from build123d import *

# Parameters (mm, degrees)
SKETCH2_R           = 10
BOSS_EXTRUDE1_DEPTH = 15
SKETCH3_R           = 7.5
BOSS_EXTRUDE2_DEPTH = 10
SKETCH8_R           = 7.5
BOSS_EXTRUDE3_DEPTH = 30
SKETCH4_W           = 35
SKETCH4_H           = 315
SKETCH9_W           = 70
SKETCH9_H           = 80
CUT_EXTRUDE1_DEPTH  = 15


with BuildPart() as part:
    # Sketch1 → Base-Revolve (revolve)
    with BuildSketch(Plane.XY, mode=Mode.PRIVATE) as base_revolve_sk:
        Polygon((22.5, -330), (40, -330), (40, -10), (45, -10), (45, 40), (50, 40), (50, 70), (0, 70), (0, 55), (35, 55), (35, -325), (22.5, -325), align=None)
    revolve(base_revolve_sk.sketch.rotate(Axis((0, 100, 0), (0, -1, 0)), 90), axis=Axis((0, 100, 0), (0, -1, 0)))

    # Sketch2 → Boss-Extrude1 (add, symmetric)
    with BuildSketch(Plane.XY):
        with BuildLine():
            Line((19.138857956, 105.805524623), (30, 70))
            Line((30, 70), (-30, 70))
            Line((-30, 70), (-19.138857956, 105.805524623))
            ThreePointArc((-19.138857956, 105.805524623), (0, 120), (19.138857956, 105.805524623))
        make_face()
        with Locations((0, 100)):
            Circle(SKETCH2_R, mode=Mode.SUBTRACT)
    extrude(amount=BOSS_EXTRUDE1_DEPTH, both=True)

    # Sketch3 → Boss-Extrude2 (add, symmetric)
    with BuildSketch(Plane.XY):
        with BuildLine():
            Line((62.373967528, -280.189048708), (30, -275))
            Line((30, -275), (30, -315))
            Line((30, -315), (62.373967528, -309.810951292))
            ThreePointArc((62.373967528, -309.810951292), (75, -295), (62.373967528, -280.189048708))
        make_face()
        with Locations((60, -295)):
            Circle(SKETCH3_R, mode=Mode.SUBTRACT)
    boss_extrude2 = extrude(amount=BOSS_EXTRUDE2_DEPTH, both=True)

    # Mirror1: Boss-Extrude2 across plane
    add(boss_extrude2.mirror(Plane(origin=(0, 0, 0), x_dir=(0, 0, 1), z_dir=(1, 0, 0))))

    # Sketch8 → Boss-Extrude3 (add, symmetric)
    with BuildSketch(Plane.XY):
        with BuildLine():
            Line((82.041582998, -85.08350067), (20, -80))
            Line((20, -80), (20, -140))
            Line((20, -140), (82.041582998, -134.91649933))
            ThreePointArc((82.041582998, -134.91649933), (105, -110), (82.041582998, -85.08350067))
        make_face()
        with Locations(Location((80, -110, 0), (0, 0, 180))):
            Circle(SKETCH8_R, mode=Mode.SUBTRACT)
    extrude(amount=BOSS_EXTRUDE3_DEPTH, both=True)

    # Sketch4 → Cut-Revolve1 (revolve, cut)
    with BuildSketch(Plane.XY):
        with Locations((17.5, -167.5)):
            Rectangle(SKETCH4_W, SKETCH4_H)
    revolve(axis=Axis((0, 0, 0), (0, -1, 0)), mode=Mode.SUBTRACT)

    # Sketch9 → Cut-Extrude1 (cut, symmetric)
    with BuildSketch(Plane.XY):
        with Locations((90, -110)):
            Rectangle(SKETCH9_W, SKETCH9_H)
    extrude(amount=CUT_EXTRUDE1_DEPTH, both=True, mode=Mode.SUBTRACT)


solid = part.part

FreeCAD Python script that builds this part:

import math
import FreeCAD as App
import Part
import Sketcher
from FreeCAD import Vector

doc = App.newDocument("Part")
body = doc.addObject("PartDesign::Body", "Body")

sketch1 = body.newObject("Sketcher::SketchObject", "Sketch")
sketch1.AttachmentSupport = (doc.getObject("XY_Plane"), [""])
sketch1.MapMode = "FlatFace"
sketch1.addGeometry(Part.LineSegment(Vector(22, -330, 0), Vector(40, -330, 0)), False)
sketch1.addGeometry(Part.LineSegment(Vector(40, -330, 0), Vector(40, -10, 0)), False)
sketch1.addGeometry(Part.LineSegment(Vector(40, -10, 0), Vector(45, -10, 0)), False)
sketch1.addGeometry(Part.LineSegment(Vector(45, -10, 0), Vector(45, 40, 0)), False)
sketch1.addGeometry(Part.LineSegment(Vector(45, 40, 0), Vector(50, 40, 0)), False)
sketch1.addGeometry(Part.LineSegment(Vector(50, 40, 0), Vector(50, 70, 0)), False)
sketch1.addGeometry(Part.LineSegment(Vector(50, 70, 0), Vector(0, 70, 0)), False)
sketch1.addGeometry(Part.LineSegment(Vector(0, 70, 0), Vector(0, 55, 0)), False)
sketch1.addGeometry(Part.LineSegment(Vector(0, 55, 0), Vector(35, 55, 0)), False)
sketch1.addGeometry(Part.LineSegment(Vector(35, 55, 0), Vector(35, -325, 0)), False)
sketch1.addGeometry(Part.LineSegment(Vector(35, -325, 0), Vector(22, -325, 0)), False)
sketch1.addGeometry(Part.LineSegment(Vector(22, -325, 0), Vector(22, -330, 0)), False)
sketch1.addConstraint(Sketcher.Constraint("Coincident", 0, 2, 1, 1))
sketch1.addConstraint(Sketcher.Constraint("Coincident", 1, 2, 2, 1))
sketch1.addConstraint(Sketcher.Constraint("Coincident", 2, 2, 3, 1))
sketch1.addConstraint(Sketcher.Constraint("Coincident", 3, 2, 4, 1))
sketch1.addConstraint(Sketcher.Constraint("Coincident", 4, 2, 5, 1))
sketch1.addConstraint(Sketcher.Constraint("Coincident", 5, 2, 6, 1))
sketch1.addConstraint(Sketcher.Constraint("Coincident", 6, 2, 7, 1))
sketch1.addConstraint(Sketcher.Constraint("Coincident", 7, 2, 8, 1))
sketch1.addConstraint(Sketcher.Constraint("Coincident", 8, 2, 9, 1))
sketch1.addConstraint(Sketcher.Constraint("Coincident", 9, 2, 10, 1))
sketch1.addConstraint(Sketcher.Constraint("Coincident", 10, 2, 11, 1))
sketch1.addConstraint(Sketcher.Constraint("Coincident", 11, 2, 0, 1))
sketch1.addConstraint(Sketcher.Constraint("Horizontal", 0))
sketch1.addConstraint(Sketcher.Constraint("Vertical", 1))
sketch1.addConstraint(Sketcher.Constraint("Horizontal", 2))
sketch1.addConstraint(Sketcher.Constraint("Vertical", 3))
sketch1.addConstraint(Sketcher.Constraint("Horizontal", 4))
sketch1.addConstraint(Sketcher.Constraint("Vertical", 5))
sketch1.addConstraint(Sketcher.Constraint("Horizontal", 6))
sketch1.addConstraint(Sketcher.Constraint("Vertical", 7))
sketch1.addConstraint(Sketcher.Constraint("Horizontal", 8))
sketch1.addConstraint(Sketcher.Constraint("Vertical", 9))
sketch1.addConstraint(Sketcher.Constraint("Horizontal", 10))
sketch1.addConstraint(Sketcher.Constraint("Vertical", 11))
sketch1.addConstraint(Sketcher.Constraint("PointOnObject", 6, 2, -2))
sketch1.addConstraint(Sketcher.Constraint("Equal", 2, 4))
sketch1.addConstraint(Sketcher.Constraint("Equal", 6, 3))
sketch1.addConstraint(Sketcher.Constraint("Equal", 4, 11))
sketch1.addConstraint(Sketcher.Constraint("DistanceX", 2, 1, 2, 2, 5.0))
sketch1.addConstraint(Sketcher.Constraint("DistanceX", 6, 2, 6, 1, 50.0))
sketch1.addConstraint(Sketcher.Constraint("DistanceX", 8, 1, 8, 2, 35.0))
sketch1.addConstraint(Sketcher.Constraint("DistanceY", 1, 1, 1, 2, 320.0))
sketch1.addConstraint(Sketcher.Constraint("DistanceY", 5, 1, 5, 2, 30.0))
sketch1.addConstraint(Sketcher.Constraint("DistanceY", 7, 2, 7, 1, 15.0))
sketch1.addConstraint(Sketcher.Constraint("DistanceX", 0, 1, 0, 2, 17.5))
sketch1.addConstraint(Sketcher.Constraint("DistanceY", 0, 2, -1, 1, 330.0))
revolution = body.newObject("PartDesign::Revolution", "Revolution")
revolution.Profile = sketch1
revolution.ReferenceAxis = (sketch1, ["V_Axis"])
revolution.Angle = 360

sketch2 = body.newObject("Sketcher::SketchObject", "Sketch001")
sketch2.AttachmentSupport = (doc.getObject("XY_Plane"), [""])
sketch2.MapMode = "FlatFace"
sketch2.addGeometry(Part.LineSegment(Vector(30, 70, 0), Vector(19, 106, 0)), False)
sketch2.addGeometry(Part.ArcOfCircle(Part.Circle(Vector(0, 100, 0), Vector(0, 0, 1), 20), math.radians(17), math.radians(163)), False)
sketch2.addGeometry(Part.LineSegment(Vector(-19, 106, 0), Vector(-30, 70, 0)), False)
sketch2.addGeometry(Part.LineSegment(Vector(-30, 70, 0), Vector(30, 70, 0)), False)
sketch2.addGeometry(Part.Circle(Vector(0, 100, 0), Vector(0, 0, 1), 10), False)
sketch2.addConstraint(Sketcher.Constraint("Tangent", 0, 2, 1, 1))
sketch2.addConstraint(Sketcher.Constraint("Tangent", 1, 2, 2, 1))
sketch2.addConstraint(Sketcher.Constraint("Coincident", 2, 2, 3, 1))
sketch2.addConstraint(Sketcher.Constraint("Coincident", 3, 2, 0, 1))
sketch2.addConstraint(Sketcher.Constraint("Horizontal", 3))
sketch2.addConstraint(Sketcher.Constraint("Coincident", 4, 3, 1, 3))
sketch2.addConstraint(Sketcher.Constraint("Symmetric", 0, 2, 1, 2, -2))
sketch2.addConstraint(Sketcher.Constraint("Diameter", 4, 20.0))
sketch2.addConstraint(Sketcher.Constraint("Radius", 1, 20.0))
sketch2.addConstraint(Sketcher.Constraint("DistanceX", 3, 1, 3, 2, 60.0))
sketch2.addConstraint(Sketcher.Constraint("DistanceY", -1, 1, 1, 3, 100.0))
sketch2.addConstraint(Sketcher.Constraint("DistanceY", -1, 1, 2, 2, 70.0))
pad1 = body.newObject("PartDesign::Pad", "Pad")
pad1.Profile = sketch2
pad1.Length = 30
pad1.Midplane = True

sketch3 = body.newObject("Sketcher::SketchObject", "Sketch002")
sketch3.AttachmentSupport = (doc.getObject("XY_Plane"), [""])
sketch3.MapMode = "FlatFace"
sketch3.addGeometry(Part.LineSegment(Vector(62, -280, 0), Vector(30, -275, 0)), False)
sketch3.addGeometry(Part.LineSegment(Vector(30, -275, 0), Vector(30, -315, 0)), False)
sketch3.addGeometry(Part.LineSegment(Vector(30, -315, 0), Vector(62, -310, 0)), False)
sketch3.addGeometry(Part.ArcOfCircle(Part.Circle(Vector(60, -295, 0), Vector(0, 0, 1), 15), math.radians(-81), math.radians(81)), False)
sketch3.addGeometry(Part.Circle(Vector(60, -295, 0), Vector(0, 0, 1), 8), False)
sketch3.addConstraint(Sketcher.Constraint("Coincident", 0, 2, 1, 1))
sketch3.addConstraint(Sketcher.Constraint("Coincident", 1, 2, 2, 1))
sketch3.addConstraint(Sketcher.Constraint("Tangent", 2, 2, 3, 1))
sketch3.addConstraint(Sketcher.Constraint("Tangent", 3, 2, 0, 1))
sketch3.addConstraint(Sketcher.Constraint("Vertical", 1))
sketch3.addConstraint(Sketcher.Constraint("Coincident", 4, 3, 3, 3))
sketch3.addConstraint(Sketcher.Constraint("Vertical", 2, 2, 3, 2))
sketch3.addConstraint(Sketcher.Constraint("Diameter", 4, 15.0))
sketch3.addConstraint(Sketcher.Constraint("Radius", 3, 15.0))
sketch3.addConstraint(Sketcher.Constraint("DistanceY", 1, 2, 1, 1, 40.0))
sketch3.addConstraint(Sketcher.Constraint("DistanceX", -1, 1, 3, 3, 60.0))
sketch3.addConstraint(Sketcher.Constraint("DistanceY", 3, 3, -1, 1, 295.0))
sketch3.addConstraint(Sketcher.Constraint("DistanceX", -1, 1, 0, 2, 30.0))
pad2 = body.newObject("PartDesign::Pad", "Pad001")
pad2.Profile = sketch3
pad2.Length = 20
pad2.Midplane = True
doc.recompute()

mirrored = body.newObject("PartDesign::Mirrored", "Mirrored")
mirrored.Originals = [pad2]
mirrored.MirrorPlane = (doc.getObject("YZ_Plane"), [""])
body.Tip = mirrored

sketch4 = body.newObject("Sketcher::SketchObject", "Sketch003")
sketch4.AttachmentSupport = (doc.getObject("XY_Plane"), [""])
sketch4.MapMode = "FlatFace"
sketch4.addGeometry(Part.LineSegment(Vector(82, -85, 0), Vector(20, -80, 0)), False)
sketch4.addGeometry(Part.LineSegment(Vector(20, -80, 0), Vector(20, -140, 0)), False)
sketch4.addGeometry(Part.LineSegment(Vector(20, -140, 0), Vector(82, -135, 0)), False)
sketch4.addGeometry(Part.ArcOfCircle(Part.Circle(Vector(80, -110, 0), Vector(0, 0, 1), 25), math.radians(-85), math.radians(85)), False)
sketch4.addGeometry(Part.Circle(Vector(80, -110, 0), Vector(0, 0, 1), 8), False)
sketch4.addConstraint(Sketcher.Constraint("Coincident", 0, 2, 1, 1))
sketch4.addConstraint(Sketcher.Constraint("Coincident", 1, 2, 2, 1))
sketch4.addConstraint(Sketcher.Constraint("Tangent", 2, 2, 3, 1))
sketch4.addConstraint(Sketcher.Constraint("Tangent", 3, 2, 0, 1))
sketch4.addConstraint(Sketcher.Constraint("Vertical", 1))
sketch4.addConstraint(Sketcher.Constraint("Coincident", 4, 3, 3, 3))
sketch4.addConstraint(Sketcher.Constraint("Vertical", 2, 2, 3, 2))
sketch4.addConstraint(Sketcher.Constraint("Diameter", 4, 15.0))
sketch4.addConstraint(Sketcher.Constraint("Radius", 3, 25.0))
sketch4.addConstraint(Sketcher.Constraint("DistanceY", 1, 2, 1, 1, 60.0))
sketch4.addConstraint(Sketcher.Constraint("DistanceX", -1, 1, 3, 3, 80.0))
sketch4.addConstraint(Sketcher.Constraint("DistanceY", 3, 3, -1, 1, 110.0))
sketch4.addConstraint(Sketcher.Constraint("DistanceX", -1, 1, 0, 2, 20.0))
pad3 = body.newObject("PartDesign::Pad", "Pad002")
pad3.Profile = sketch4
pad3.Length = 60
pad3.Midplane = True

sketch5 = body.newObject("Sketcher::SketchObject", "Sketch004")
sketch5.AttachmentSupport = (doc.getObject("XY_Plane"), [""])
sketch5.MapMode = "FlatFace"
sketch5.addGeometry(Part.LineSegment(Vector(0, -10, 0), Vector(0, -325, 0)), False)
sketch5.addGeometry(Part.LineSegment(Vector(0, -325, 0), Vector(35, -325, 0)), False)
sketch5.addGeometry(Part.LineSegment(Vector(35, -325, 0), Vector(35, -10, 0)), False)
sketch5.addGeometry(Part.LineSegment(Vector(35, -10, 0), Vector(0, -10, 0)), False)
sketch5.addConstraint(Sketcher.Constraint("Coincident", 0, 2, 1, 1))
sketch5.addConstraint(Sketcher.Constraint("Coincident", 1, 2, 2, 1))
sketch5.addConstraint(Sketcher.Constraint("Coincident", 2, 2, 3, 1))
sketch5.addConstraint(Sketcher.Constraint("Coincident", 3, 2, 0, 1))
sketch5.addConstraint(Sketcher.Constraint("Vertical", 0))
sketch5.addConstraint(Sketcher.Constraint("Horizontal", 1))
sketch5.addConstraint(Sketcher.Constraint("Vertical", 2))
sketch5.addConstraint(Sketcher.Constraint("Horizontal", 3))
sketch5.addConstraint(Sketcher.Constraint("PointOnObject", 0, 2, -2))
sketch5.addConstraint(Sketcher.Constraint("DistanceX", 1, 1, 1, 2, 35.0))
sketch5.addConstraint(Sketcher.Constraint("DistanceY", 0, 2, 0, 1, 315.0))
sketch5.addConstraint(Sketcher.Constraint("DistanceY", 0, 2, -1, 1, 325.0))
groove = body.newObject("PartDesign::Groove", "Groove")
groove.Profile = sketch5
groove.ReferenceAxis = (sketch5, ["V_Axis"])
groove.Angle = 360

sketch6 = body.newObject("Sketcher::SketchObject", "Sketch005")
sketch6.AttachmentSupport = (doc.getObject("XY_Plane"), [""])
sketch6.MapMode = "FlatFace"
sketch6.addGeometry(Part.LineSegment(Vector(55, -70, 0), Vector(55, -150, 0)), False)
sketch6.addGeometry(Part.LineSegment(Vector(55, -150, 0), Vector(125, -150, 0)), False)
sketch6.addGeometry(Part.LineSegment(Vector(125, -150, 0), Vector(125, -70, 0)), False)
sketch6.addGeometry(Part.LineSegment(Vector(125, -70, 0), Vector(55, -70, 0)), False)
sketch6.addConstraint(Sketcher.Constraint("Coincident", 0, 2, 1, 1))
sketch6.addConstraint(Sketcher.Constraint("Coincident", 1, 2, 2, 1))
sketch6.addConstraint(Sketcher.Constraint("Coincident", 2, 2, 3, 1))
sketch6.addConstraint(Sketcher.Constraint("Coincident", 3, 2, 0, 1))
sketch6.addConstraint(Sketcher.Constraint("Vertical", 0))
sketch6.addConstraint(Sketcher.Constraint("Horizontal", 1))
sketch6.addConstraint(Sketcher.Constraint("Vertical", 2))
sketch6.addConstraint(Sketcher.Constraint("Horizontal", 3))
sketch6.addConstraint(Sketcher.Constraint("DistanceX", 1, 1, 1, 2, 70.0))
sketch6.addConstraint(Sketcher.Constraint("DistanceY", 0, 2, 0, 1, 80.0))
sketch6.addConstraint(Sketcher.Constraint("DistanceX", -1, 1, 0, 2, 55.0))
sketch6.addConstraint(Sketcher.Constraint("DistanceY", 0, 2, -1, 1, 150.0))
pocket1 = body.newObject("PartDesign::Pocket", "Pocket")
pocket1.Profile = sketch6
pocket1.Length = 30
pocket1.Midplane = True

doc.recompute()
